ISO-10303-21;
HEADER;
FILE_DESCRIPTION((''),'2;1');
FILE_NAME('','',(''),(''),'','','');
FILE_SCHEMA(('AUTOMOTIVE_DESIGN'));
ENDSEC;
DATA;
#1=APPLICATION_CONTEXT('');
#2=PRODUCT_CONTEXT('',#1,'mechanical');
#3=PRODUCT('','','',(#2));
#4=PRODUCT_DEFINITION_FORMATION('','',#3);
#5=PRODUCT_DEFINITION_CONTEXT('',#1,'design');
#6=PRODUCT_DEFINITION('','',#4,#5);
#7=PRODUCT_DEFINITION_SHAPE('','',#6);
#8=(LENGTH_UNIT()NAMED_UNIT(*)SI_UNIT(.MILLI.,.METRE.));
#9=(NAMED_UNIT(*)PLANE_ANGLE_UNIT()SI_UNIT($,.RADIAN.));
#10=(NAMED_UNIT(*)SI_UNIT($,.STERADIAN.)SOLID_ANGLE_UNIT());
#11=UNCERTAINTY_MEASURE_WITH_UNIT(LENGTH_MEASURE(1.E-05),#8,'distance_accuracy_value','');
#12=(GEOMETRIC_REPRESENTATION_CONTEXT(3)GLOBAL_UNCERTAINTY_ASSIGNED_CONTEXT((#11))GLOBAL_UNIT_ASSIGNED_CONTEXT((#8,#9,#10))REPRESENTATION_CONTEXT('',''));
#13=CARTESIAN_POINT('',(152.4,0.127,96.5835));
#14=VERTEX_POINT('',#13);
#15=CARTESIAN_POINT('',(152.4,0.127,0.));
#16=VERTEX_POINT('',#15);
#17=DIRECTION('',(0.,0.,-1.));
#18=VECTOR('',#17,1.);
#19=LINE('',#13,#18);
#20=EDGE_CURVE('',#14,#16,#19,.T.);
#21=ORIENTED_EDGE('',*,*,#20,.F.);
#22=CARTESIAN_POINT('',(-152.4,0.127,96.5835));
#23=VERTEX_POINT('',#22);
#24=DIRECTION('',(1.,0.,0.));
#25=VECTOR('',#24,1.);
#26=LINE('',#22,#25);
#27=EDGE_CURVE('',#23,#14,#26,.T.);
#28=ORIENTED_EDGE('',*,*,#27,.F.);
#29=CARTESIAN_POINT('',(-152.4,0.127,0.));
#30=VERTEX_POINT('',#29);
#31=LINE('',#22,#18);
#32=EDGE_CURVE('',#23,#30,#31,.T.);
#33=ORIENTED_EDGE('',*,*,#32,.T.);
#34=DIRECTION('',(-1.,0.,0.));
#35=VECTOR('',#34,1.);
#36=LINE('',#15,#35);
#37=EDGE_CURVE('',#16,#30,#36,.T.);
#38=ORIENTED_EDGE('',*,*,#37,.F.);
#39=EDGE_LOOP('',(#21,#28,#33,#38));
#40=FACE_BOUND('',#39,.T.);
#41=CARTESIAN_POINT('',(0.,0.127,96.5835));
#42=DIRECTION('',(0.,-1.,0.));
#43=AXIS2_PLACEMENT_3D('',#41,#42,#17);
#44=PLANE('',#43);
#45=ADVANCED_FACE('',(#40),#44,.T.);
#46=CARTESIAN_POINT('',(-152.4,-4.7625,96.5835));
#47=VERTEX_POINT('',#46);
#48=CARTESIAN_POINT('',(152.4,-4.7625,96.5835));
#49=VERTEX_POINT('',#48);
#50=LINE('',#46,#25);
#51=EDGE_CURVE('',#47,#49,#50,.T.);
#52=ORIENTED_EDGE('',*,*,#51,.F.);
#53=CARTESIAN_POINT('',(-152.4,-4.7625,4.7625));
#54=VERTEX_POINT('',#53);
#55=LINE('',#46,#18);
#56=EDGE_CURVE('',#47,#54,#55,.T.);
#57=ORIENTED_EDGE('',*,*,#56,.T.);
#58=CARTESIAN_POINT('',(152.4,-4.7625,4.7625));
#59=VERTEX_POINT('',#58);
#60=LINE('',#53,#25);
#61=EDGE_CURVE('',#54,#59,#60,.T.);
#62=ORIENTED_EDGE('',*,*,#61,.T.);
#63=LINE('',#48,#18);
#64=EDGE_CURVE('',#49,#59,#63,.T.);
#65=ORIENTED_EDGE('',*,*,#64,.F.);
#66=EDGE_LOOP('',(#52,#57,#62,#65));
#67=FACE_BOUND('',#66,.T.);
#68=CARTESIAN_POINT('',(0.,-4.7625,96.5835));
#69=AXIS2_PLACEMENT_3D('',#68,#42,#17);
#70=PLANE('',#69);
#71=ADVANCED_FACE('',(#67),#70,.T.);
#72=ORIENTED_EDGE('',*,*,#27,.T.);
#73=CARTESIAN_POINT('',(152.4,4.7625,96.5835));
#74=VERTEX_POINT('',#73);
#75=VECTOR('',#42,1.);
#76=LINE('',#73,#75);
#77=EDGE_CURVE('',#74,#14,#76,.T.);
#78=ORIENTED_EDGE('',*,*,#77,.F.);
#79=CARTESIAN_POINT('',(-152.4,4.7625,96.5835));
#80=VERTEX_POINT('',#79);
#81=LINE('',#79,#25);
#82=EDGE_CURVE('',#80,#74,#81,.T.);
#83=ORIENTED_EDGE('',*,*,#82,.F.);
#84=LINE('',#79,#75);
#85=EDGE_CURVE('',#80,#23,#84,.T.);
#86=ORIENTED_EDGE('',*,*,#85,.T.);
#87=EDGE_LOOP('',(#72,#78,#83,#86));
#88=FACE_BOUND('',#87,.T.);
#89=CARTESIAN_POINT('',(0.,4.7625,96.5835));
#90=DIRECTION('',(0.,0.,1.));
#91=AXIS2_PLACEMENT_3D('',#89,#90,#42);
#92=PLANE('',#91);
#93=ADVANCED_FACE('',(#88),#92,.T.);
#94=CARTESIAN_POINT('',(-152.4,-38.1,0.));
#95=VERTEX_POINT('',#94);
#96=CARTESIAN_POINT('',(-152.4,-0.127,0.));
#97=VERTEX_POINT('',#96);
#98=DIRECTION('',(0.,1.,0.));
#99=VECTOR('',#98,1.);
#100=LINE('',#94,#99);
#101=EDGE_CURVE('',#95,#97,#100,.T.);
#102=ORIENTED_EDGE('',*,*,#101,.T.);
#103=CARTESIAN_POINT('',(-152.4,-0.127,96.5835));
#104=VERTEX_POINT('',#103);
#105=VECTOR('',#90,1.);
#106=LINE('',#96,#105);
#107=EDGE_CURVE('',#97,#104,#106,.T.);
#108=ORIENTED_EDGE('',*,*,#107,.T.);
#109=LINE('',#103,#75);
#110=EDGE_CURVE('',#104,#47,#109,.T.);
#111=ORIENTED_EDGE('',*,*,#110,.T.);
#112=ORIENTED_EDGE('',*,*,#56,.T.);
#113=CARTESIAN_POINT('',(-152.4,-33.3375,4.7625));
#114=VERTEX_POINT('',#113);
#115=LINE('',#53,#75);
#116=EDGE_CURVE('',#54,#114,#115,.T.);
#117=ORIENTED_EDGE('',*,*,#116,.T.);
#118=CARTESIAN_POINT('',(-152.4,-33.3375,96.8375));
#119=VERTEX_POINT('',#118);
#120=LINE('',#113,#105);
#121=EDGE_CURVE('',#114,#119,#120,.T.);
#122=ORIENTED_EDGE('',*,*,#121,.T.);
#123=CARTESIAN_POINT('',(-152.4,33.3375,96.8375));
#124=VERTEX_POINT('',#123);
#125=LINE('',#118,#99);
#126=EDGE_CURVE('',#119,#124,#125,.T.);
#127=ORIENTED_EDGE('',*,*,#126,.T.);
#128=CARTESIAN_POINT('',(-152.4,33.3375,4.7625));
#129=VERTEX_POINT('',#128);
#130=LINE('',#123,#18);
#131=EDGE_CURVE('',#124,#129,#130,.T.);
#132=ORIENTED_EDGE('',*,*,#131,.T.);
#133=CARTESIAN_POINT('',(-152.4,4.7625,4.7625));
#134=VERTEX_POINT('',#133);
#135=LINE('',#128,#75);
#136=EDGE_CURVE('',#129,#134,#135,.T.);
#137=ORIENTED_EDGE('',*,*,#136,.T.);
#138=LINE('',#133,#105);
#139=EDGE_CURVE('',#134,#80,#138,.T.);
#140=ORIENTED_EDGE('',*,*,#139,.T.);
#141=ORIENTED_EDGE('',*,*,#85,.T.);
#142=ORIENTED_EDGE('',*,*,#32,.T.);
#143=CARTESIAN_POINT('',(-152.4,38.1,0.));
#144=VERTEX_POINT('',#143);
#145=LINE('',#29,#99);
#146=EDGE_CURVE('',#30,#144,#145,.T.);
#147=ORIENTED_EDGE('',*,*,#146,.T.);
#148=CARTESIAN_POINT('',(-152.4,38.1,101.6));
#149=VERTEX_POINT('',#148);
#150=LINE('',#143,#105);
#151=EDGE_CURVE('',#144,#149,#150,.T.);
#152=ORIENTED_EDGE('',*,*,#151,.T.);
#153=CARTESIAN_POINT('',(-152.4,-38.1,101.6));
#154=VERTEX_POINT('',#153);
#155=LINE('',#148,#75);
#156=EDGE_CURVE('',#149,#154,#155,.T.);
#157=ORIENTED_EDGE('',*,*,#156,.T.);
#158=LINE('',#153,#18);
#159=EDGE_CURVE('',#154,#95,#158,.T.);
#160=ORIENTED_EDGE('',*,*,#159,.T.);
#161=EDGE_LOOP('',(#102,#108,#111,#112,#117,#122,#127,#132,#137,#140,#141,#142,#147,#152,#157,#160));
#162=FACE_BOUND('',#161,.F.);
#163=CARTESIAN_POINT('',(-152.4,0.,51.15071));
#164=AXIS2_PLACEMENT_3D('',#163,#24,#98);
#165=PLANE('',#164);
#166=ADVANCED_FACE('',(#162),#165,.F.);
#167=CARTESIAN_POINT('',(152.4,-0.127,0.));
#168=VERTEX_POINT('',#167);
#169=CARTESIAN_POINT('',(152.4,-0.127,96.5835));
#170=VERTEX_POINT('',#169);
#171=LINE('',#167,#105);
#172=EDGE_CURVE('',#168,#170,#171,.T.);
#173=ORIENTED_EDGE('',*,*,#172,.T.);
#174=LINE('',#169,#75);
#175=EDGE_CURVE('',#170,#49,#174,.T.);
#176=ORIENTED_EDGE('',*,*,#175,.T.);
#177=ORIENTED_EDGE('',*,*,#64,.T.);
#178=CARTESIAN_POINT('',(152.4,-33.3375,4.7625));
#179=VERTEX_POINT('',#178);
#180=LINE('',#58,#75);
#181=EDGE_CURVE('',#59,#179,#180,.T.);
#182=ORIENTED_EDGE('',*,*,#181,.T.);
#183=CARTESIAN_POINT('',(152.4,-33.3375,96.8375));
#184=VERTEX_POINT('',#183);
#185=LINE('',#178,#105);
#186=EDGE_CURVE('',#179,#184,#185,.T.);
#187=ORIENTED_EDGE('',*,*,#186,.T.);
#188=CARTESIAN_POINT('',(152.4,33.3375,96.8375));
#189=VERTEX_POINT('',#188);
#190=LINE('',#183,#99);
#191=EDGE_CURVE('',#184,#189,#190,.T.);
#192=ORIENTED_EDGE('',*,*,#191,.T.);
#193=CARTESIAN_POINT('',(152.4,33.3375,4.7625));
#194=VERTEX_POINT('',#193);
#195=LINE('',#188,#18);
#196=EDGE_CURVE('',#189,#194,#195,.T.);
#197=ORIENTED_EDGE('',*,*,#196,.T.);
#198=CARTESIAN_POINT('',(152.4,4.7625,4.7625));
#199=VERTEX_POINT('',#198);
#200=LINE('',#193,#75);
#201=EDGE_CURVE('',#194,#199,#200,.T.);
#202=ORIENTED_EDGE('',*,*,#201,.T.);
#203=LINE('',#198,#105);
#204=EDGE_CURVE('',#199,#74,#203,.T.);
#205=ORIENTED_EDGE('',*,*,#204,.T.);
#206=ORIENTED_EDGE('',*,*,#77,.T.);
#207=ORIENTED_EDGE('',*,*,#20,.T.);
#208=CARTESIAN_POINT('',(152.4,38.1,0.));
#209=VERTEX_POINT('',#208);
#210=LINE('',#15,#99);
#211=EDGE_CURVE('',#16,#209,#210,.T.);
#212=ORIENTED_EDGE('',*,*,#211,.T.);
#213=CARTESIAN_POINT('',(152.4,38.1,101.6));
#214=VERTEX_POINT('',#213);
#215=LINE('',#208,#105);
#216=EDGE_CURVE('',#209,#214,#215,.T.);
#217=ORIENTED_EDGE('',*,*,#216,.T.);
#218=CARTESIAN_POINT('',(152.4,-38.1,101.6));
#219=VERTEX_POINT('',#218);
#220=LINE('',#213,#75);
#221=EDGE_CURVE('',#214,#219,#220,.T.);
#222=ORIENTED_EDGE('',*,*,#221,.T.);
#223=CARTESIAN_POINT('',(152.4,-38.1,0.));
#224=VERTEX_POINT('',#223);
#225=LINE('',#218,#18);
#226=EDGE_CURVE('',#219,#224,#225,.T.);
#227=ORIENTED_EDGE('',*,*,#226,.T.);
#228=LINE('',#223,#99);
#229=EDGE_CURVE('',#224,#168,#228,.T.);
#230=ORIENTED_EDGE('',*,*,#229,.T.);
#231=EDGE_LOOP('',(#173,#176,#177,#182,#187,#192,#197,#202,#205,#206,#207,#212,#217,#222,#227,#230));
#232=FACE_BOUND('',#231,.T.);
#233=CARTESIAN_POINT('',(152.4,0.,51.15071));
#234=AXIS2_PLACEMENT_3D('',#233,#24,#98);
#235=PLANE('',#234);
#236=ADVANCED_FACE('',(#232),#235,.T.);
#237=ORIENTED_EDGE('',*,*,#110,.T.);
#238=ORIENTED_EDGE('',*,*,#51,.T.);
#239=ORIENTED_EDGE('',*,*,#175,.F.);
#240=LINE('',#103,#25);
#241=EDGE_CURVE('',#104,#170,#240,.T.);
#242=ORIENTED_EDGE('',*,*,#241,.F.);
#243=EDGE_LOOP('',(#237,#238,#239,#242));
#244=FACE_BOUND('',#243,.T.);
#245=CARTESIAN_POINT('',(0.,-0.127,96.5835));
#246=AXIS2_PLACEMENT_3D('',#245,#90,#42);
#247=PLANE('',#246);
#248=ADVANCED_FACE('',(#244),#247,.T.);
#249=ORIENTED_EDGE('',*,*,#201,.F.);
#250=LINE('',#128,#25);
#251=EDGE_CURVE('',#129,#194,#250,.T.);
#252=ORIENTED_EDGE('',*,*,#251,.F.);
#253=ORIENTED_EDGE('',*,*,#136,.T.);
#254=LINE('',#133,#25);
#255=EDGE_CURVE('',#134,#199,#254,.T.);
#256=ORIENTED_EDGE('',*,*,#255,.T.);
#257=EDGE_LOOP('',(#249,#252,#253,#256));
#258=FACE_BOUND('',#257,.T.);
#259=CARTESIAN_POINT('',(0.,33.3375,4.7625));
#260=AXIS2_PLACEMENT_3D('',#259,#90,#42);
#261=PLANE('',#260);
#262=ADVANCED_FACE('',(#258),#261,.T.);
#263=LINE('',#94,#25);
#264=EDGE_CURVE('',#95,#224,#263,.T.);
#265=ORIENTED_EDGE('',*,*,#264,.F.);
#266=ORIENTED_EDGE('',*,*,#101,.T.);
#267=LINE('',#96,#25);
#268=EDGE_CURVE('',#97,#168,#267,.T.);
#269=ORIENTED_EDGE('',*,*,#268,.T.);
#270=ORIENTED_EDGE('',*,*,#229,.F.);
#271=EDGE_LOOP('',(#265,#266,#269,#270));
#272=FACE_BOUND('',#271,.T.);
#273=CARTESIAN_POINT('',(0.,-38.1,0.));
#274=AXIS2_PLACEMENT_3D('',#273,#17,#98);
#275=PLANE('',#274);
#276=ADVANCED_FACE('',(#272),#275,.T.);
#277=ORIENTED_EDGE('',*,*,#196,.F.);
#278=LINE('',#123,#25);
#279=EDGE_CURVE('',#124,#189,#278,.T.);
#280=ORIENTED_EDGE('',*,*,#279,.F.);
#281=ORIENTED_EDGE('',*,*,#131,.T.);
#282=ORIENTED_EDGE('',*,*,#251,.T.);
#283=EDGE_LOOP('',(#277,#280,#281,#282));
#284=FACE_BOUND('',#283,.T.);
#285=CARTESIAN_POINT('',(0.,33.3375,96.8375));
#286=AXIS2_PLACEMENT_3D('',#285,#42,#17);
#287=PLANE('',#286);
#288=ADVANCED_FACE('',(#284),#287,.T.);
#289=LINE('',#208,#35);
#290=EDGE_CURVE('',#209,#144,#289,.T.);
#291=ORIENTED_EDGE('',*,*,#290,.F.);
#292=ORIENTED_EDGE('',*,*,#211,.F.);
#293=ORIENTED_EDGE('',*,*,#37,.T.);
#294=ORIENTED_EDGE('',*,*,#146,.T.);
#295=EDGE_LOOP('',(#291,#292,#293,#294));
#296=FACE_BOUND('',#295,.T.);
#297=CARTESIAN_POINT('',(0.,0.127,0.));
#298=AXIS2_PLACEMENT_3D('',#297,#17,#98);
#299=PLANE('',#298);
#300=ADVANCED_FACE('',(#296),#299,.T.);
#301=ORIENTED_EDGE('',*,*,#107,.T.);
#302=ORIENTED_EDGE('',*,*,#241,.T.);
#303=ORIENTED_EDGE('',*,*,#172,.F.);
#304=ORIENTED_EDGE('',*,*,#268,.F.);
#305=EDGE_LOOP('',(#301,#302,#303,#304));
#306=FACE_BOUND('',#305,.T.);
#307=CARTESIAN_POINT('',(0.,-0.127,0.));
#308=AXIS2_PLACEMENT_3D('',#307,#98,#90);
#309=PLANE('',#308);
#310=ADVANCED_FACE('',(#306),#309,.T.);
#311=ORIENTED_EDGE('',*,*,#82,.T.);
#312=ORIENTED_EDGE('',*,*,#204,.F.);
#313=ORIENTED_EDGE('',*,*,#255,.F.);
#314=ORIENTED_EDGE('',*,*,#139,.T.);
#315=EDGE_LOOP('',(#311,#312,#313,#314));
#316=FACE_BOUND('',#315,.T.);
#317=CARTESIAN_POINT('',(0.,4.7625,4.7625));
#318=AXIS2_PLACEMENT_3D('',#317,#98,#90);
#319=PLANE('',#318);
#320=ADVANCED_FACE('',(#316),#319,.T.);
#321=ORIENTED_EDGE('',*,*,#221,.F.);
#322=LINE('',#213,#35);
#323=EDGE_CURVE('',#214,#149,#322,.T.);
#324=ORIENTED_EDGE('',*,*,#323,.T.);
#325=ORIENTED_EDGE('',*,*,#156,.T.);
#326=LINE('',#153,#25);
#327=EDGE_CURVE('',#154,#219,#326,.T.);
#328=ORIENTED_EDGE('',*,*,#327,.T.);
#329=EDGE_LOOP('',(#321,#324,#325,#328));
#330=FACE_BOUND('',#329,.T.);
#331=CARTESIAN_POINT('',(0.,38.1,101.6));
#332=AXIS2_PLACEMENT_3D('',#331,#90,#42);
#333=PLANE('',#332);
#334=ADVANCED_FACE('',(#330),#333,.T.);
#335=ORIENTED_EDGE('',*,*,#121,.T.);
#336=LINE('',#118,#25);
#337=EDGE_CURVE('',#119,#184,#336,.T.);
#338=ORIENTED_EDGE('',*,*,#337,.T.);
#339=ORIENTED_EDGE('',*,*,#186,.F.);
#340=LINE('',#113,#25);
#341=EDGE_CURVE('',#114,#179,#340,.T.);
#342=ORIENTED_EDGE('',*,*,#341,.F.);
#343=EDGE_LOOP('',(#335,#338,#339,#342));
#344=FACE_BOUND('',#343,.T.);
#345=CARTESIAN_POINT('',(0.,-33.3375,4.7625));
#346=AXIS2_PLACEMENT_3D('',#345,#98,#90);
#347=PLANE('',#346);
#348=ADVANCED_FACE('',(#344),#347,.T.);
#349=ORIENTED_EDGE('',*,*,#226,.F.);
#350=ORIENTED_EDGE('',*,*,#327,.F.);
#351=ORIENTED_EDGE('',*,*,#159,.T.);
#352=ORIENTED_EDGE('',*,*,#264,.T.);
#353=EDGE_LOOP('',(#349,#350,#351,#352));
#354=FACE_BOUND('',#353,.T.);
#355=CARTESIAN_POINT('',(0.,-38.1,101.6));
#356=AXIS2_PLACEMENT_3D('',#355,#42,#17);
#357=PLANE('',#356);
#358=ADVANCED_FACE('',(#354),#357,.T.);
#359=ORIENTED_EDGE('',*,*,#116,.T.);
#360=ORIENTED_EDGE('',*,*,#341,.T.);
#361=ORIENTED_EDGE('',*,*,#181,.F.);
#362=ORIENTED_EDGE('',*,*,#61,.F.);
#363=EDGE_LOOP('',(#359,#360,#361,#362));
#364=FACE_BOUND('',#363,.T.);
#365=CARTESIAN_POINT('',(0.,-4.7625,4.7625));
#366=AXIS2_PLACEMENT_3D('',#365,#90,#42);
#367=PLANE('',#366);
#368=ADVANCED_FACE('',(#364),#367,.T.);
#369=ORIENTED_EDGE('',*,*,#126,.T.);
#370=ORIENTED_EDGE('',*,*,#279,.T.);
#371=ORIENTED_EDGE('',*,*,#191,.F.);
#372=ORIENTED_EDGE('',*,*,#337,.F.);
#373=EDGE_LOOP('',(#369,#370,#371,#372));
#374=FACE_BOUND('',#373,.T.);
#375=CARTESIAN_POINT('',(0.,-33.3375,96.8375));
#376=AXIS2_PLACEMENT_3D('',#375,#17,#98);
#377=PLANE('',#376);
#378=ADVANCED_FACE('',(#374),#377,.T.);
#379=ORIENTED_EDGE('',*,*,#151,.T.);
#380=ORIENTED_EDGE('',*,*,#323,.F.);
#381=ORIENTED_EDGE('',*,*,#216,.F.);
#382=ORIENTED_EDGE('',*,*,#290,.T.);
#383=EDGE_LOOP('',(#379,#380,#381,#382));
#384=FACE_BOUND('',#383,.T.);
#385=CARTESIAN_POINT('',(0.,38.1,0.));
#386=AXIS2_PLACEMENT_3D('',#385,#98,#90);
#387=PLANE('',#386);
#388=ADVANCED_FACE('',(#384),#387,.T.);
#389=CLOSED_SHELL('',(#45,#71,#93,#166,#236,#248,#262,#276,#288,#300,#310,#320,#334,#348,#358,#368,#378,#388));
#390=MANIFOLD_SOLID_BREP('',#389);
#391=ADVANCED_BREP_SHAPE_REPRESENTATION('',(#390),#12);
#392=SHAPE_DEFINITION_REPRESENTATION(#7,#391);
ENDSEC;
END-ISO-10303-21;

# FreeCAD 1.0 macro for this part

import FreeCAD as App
import Part
import Sketcher

V = App.Vector
Q = App.Units.Quantity


def add_polygon(sketch, points):
    """Adds a closed chain of lines whose ends are joined by coincident constraints."""
    first, n = sketch.GeometryCount, len(points)
    for a, b in zip(points, points[1:] + points[:1]):
        sketch.addGeometry(Part.LineSegment(App.Vector(*a, 0), App.Vector(*b, 0)), False)
    for i in range(n):
        sketch.addConstraint(Sketcher.Constraint("Coincident", first + i, 2, first + (i + 1) % n, 1))

doc = App.newDocument("Part")
body = doc.addObject("PartDesign::Body", "Body")

# Sketch on YZ plane
sketch1 = body.newObject("Sketcher::SketchObject", "Sketch")
sketch1.AttachmentSupport = (doc.getObject("YZ_Plane"), [""])
sketch1.MapMode = "FlatFace"
add_polygon(sketch1, [(38.1, 101.6), (-38.1, 101.6), (-38.1, 0), (-0.1, 0), (-0.1, 96.6), (-4.8, 96.6), (-4.8, 4.8), (-33.3, 4.8), (-33.3, 96.8), (33.3, 96.8), (33.3, 4.8), (4.8, 4.8), (4.8, 96.6), (0.1, 96.6), (0.1, 0), (38.1, 0)])  # lines 0-15
sketch1.addConstraint(Sketcher.Constraint("Horizontal", 0))
sketch1.addConstraint(Sketcher.Constraint("Vertical", 1))
sketch1.addConstraint(Sketcher.Constraint("Horizontal", 2))
sketch1.addConstraint(Sketcher.Constraint("Vertical", 3))
sketch1.addConstraint(Sketcher.Constraint("Horizontal", 4))
sketch1.addConstraint(Sketcher.Constraint("Vertical", 5))
sketch1.addConstraint(Sketcher.Constraint("Horizontal", 6))
sketch1.addConstraint(Sketcher.Constraint("Vertical", 7))
sketch1.addConstraint(Sketcher.Constraint("Horizontal", 8))
sketch1.addConstraint(Sketcher.Constraint("Vertical", 9))
sketch1.addConstraint(Sketcher.Constraint("Horizontal", 10))
sketch1.addConstraint(Sketcher.Constraint("Vertical", 11))
sketch1.addConstraint(Sketcher.Constraint("Horizontal", 12))
sketch1.addConstraint(Sketcher.Constraint("Vertical", 13))
sketch1.addConstraint(Sketcher.Constraint("Horizontal", 14))
sketch1.addConstraint(Sketcher.Constraint("Vertical", 15))
sketch1.addConstraint(Sketcher.Constraint("Symmetric", 2, 2, 13, 2, -1, 1))
sketch1.addConstraint(Sketcher.Constraint("Symmetric", 6, 2, 9, 2, -2))
sketch1.addConstraint(Sketcher.Constraint("Symmetric", 4, 2, 11, 2, -2))
sketch1.addConstraint(Sketcher.Constraint("Symmetric", 1, 2, 14, 2, -2))
sketch1.addConstraint(Sketcher.Constraint("DistanceX", 0, 2, 0, 1, Q("3 in")))
sketch1.addConstraint(Sketcher.Constraint("DistanceY", 1, 2, 1, 1, Q("4 in")))
sketch1.addConstraint(Sketcher.Constraint("DistanceX", 4, 2, 8, 2, Q("1.5 in")))
sketch1.addConstraint(Sketcher.Constraint("DistanceX", 2, 1, 2, 2, Q("1.495 in")))
sketch1.addConstraint(Sketcher.Constraint("DistanceX", 6, 2, 6, 1, Q("1.125 in")))
sketch1.addConstraint(Sketcher.Constraint("DistanceY", 5, 2, 5, 1, Q("3.615 in")))
sketch1.addConstraint(Sketcher.Constraint("DistanceY", 7, 1, 7, 2, Q("3.625 in")))
sketch1.addConstraint(Sketcher.Constraint("DistanceY", 3, 1, 3, 2, Q("3.8025 in")))
pad1 = body.newObject("PartDesign::Pad", "Pad")
pad1.Profile = sketch1
pad1.Length = Q("12 in")
pad1.Midplane = True

doc.recompute()
